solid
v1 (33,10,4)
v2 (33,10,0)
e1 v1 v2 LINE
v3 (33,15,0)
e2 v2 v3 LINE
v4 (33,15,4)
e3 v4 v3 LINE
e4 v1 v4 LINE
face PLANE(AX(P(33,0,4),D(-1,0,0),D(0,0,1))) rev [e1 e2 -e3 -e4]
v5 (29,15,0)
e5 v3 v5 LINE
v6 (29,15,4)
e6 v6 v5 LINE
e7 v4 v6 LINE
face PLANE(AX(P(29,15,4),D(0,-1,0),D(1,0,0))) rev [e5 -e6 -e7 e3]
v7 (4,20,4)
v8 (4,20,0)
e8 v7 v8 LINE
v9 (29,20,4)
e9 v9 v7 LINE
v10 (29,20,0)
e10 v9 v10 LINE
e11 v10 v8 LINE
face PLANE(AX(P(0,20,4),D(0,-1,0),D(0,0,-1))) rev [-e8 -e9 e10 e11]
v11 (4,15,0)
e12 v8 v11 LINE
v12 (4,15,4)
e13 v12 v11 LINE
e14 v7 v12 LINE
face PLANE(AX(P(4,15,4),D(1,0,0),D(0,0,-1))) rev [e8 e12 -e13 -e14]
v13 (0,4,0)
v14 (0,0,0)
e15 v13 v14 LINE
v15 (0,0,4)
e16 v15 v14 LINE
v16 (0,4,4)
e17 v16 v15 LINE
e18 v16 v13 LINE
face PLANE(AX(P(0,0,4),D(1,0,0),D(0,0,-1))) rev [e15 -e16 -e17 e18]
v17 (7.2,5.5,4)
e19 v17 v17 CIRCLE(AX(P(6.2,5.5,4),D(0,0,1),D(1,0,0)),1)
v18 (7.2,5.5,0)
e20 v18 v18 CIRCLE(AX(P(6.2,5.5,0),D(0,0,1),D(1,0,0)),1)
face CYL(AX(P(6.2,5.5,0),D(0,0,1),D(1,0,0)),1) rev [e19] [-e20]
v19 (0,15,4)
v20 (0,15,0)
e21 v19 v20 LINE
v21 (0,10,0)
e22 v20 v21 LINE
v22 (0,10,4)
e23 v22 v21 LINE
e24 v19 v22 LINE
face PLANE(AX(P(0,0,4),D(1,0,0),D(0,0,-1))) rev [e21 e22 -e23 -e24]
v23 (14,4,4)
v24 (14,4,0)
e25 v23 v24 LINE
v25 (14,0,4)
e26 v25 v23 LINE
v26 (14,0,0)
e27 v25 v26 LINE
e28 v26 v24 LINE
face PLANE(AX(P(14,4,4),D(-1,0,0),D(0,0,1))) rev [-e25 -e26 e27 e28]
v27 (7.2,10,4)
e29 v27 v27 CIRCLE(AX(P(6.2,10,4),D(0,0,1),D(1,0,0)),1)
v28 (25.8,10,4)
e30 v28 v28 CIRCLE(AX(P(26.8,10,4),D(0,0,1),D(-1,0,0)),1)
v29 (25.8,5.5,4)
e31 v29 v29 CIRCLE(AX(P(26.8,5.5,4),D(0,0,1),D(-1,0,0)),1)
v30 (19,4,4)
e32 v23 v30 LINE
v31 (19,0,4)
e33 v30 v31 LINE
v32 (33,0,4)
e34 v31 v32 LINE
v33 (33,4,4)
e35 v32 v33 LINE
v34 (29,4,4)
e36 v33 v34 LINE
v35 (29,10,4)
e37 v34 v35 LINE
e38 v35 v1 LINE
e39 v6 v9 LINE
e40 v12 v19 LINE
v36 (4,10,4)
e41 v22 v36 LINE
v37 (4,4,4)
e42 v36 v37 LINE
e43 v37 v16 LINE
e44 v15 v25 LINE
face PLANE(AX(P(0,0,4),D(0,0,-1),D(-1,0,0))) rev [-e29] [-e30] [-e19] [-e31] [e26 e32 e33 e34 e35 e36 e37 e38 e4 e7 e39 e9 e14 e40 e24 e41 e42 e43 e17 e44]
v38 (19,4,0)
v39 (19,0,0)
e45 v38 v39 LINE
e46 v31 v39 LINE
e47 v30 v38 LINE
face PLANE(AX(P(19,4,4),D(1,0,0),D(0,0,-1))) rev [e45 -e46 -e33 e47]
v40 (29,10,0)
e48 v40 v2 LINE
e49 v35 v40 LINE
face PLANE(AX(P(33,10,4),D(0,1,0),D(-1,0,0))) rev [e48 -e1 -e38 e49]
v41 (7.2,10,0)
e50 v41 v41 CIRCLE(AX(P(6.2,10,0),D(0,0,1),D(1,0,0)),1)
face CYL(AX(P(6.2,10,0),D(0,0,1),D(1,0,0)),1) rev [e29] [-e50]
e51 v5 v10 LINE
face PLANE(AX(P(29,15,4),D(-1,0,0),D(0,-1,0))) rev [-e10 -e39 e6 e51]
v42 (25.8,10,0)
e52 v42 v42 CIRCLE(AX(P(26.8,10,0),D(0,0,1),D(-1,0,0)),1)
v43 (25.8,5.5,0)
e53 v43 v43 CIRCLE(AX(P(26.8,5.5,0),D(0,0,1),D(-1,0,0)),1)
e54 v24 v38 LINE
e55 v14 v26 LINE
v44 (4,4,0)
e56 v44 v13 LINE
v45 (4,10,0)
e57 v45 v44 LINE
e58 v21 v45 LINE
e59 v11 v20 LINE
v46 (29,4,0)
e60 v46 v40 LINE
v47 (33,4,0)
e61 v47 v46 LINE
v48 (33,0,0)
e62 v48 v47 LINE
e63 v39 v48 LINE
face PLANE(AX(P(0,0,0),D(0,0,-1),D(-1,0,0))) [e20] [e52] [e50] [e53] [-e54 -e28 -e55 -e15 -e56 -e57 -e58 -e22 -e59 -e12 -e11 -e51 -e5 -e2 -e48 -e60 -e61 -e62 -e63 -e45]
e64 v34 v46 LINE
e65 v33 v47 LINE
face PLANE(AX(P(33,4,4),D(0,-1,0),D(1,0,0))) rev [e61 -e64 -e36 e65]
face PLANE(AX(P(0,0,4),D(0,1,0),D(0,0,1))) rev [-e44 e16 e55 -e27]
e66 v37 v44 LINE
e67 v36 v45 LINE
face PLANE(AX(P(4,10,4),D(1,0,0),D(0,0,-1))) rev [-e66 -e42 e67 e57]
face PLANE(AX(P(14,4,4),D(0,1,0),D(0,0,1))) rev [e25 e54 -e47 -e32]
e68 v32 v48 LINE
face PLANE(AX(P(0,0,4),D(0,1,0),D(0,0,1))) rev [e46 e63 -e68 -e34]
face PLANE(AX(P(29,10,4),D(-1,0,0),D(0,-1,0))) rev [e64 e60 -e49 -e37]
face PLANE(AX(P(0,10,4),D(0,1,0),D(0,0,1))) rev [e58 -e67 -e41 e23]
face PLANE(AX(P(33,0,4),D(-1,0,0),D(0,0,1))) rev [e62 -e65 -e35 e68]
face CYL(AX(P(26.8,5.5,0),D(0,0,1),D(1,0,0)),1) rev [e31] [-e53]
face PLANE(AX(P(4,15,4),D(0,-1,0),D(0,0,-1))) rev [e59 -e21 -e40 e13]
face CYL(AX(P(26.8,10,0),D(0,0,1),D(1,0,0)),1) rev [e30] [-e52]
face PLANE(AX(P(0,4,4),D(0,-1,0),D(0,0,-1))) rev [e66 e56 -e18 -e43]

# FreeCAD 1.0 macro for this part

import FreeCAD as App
import Part
import Sketcher
Q = App.Units.Quantity


def add_polygon(sketch, points):
    """Adds a closed chain of lines whose ends are joined by coincident constraints."""
    first, n = sketch.GeometryCount, len(points)
    for a, b in zip(points, points[1:] + points[:1]):
        sketch.addGeometry(Part.LineSegment(App.Vector(*a, 0), App.Vector(*b, 0)), False)
    for i in range(n):
        sketch.addConstraint(Sketcher.Constraint("Coincident", first + i, 2, first + (i + 1) % n, 1))

doc = App.newDocument("Part")
body = doc.addObject("PartDesign::Body", "Body")

sketch1 = doc.addObject("Sketcher::SketchObject", "Sketch")
body.addObject(sketch1)
sketch1.AttachmentSupport = (doc.XY_Plane, [""])
sketch1.MapMode = "FlatFace"
add_polygon(sketch1, [(0, 20), (0, 0), (33, 0), (33, 20)])
sketch1.addConstraint(Sketcher.Constraint("Vertical", 0))
sketch1.addConstraint(Sketcher.Constraint("Horizontal", 1))
sketch1.addConstraint(Sketcher.Constraint("Vertical", 2))
sketch1.addConstraint(Sketcher.Constraint("Horizontal", 3))
sketch1.addConstraint(Sketcher.Constraint("Coincident", 0, 2, -1, 1))
sketch1.addConstraint(Sketcher.Constraint("DistanceX", 1, 1, 1, 2, Q("33 mm")))
sketch1.addConstraint(Sketcher.Constraint("DistanceY", 0, 2, 0, 1, Q("20 mm")))
pad1 = doc.addObject("PartDesign::Pad", "Pad")
body.addObject(pad1)
pad1.Profile = sketch1
pad1.Length = 4

sketch2 = doc.addObject("Sketcher::SketchObject", "Sketch001")
body.addObject(sketch2)
sketch2.AttachmentSupport = (doc.XY_Plane, [""])
sketch2.MapMode = "FlatFace"
add_polygon(sketch2, [(4, 20), (4, 15), (0, 15), (0, 20)])
add_polygon(sketch2, [(4, 10), (4, 4), (0, 4), (0, 10)])
add_polygon(sketch2, [(19, 4), (19, 0), (14, 0), (14, 4)])
add_polygon(sketch2, [(33, 10), (33, 4), (29, 4), (29, 10)])
add_polygon(sketch2, [(33, 20), (33, 15), (29, 15), (29, 20)])
sketch2.addConstraint(Sketcher.Constraint("Vertical", 0))
sketch2.addConstraint(Sketcher.Constraint("Horizontal", 1))
sketch2.addConstraint(Sketcher.Constraint("Vertical", 2))
sketch2.addConstraint(Sketcher.Constraint("Horizontal", 3))
sketch2.addConstraint(Sketcher.Constraint("Vertical", 4))
sketch2.addConstraint(Sketcher.Constraint("Horizontal", 5))
sketch2.addConstraint(Sketcher.Constraint("Vertical", 6))
sketch2.addConstraint(Sketcher.Constraint("Horizontal", 7))
sketch2.addConstraint(Sketcher.Constraint("Vertical", 8))
sketch2.addConstraint(Sketcher.Constraint("Horizontal", 9))
sketch2.addConstraint(Sketcher.Constraint("Vertical", 10))
sketch2.addConstraint(Sketcher.Constraint("Horizontal", 11))
sketch2.addConstraint(Sketcher.Constraint("Vertical", 12))
sketch2.addConstraint(Sketcher.Constraint("Horizontal", 13))
sketch2.addConstraint(Sketcher.Constraint("Vertical", 14))
sketch2.addConstraint(Sketcher.Constraint("Horizontal", 15))
sketch2.addConstraint(Sketcher.Constraint("Vertical", 16))
sketch2.addConstraint(Sketcher.Constraint("Horizontal", 17))
sketch2.addConstraint(Sketcher.Constraint("Vertical", 18))
sketch2.addConstraint(Sketcher.Constraint("Horizontal", 19))
sketch2.addConstraint(Sketcher.Constraint("PointOnObject", 1, 2, -2))
sketch2.addConstraint(Sketcher.Constraint("PointOnObject", 5, 2, -2))
sketch2.addConstraint(Sketcher.Constraint("PointOnObject", 8, 2, -1))
sketch2.addConstraint(Sketcher.Constraint("Horizontal", 5, 2, 10, 2))
sketch2.addConstraint(Sketcher.Constraint("Horizontal", 11, 2, 12, 2))
sketch2.addConstraint(Sketcher.Constraint("Horizontal", 7, 2, 14, 2))
sketch2.addConstraint(Sketcher.Constraint("Horizontal", 1, 2, 16, 2))
sketch2.addConstraint(Sketcher.Constraint("Horizontal", 3, 2, 18, 2))
sketch2.addConstraint(Sketcher.Constraint("Vertical", 3, 2, 4, 2))
sketch2.addConstraint(Sketcher.Constraint("Vertical", 15, 2, 16, 2))
sketch2.addConstraint(Sketcher.Constraint("Vertical", 14, 2, 17, 2))
sketch2.addConstraint(Sketcher.Constraint("Equal", 7, 13))
sketch2.addConstraint(Sketcher.Constraint("Equal", 11, 0))
sketch2.addConstraint(Sketcher.Constraint("Equal", 19, 8))
sketch2.addConstraint(Sketcher.Constraint("DistanceX", 1, 2, 1, 1, Q("4 mm")))
sketch2.addConstraint(Sketcher.Constraint("DistanceX", 9, 2, 9, 1, Q("5 mm")))
sketch2.addConstraint(Sketcher.Constraint("DistanceY", 4, 2, 4, 1, Q("6 mm")))
sketch2.addConstraint(Sketcher.Constraint("DistanceY", -1, 1, 0, 2, Q("15 mm")))
sketch2.addConstraint(Sketcher.Constraint("DistanceX", -1, 1, 8, 2, Q("19 mm")))
sketch2.addConstraint(Sketcher.Constraint("DistanceX", -1, 1, 12, 2, Q("33 mm")))
pocket1 = doc.addObject("PartDesign::Pocket", "Pocket")
body.addObject(pocket1)
pocket1.Profile = sketch2
pocket1.Length = 4
pocket1.Reversed = True

sketch3 = doc.addObject("Sketcher::SketchObject", "Sketch002")
body.addObject(sketch3)
sketch3.AttachmentSupport = (doc.XY_Plane, [""])
sketch3.MapMode = "FlatFace"
sketch3.AttachmentOffset = App.Placement(App.Vector(0, 0, 4), App.Rotation())
sketch3.addGeometry(Part.Circle(App.Vector(6.2, 10, 0), App.Vector(0, 0, 1), 1), False)
sketch3.addGeometry(Part.Circle(App.Vector(26.8, 10, 0), App.Vector(0, 0, 1), 1), False)
sketch3.addGeometry(Part.Circle(App.Vector(6.2, 5.5, 0), App.Vector(0, 0, 1), 1), False)
sketch3.addGeometry(Part.Circle(App.Vector(26.8, 5.5, 0), App.Vector(0, 0, 1), 1), False)
sketch3.addConstraint(Sketcher.Constraint("Equal", 0, 1))
sketch3.addConstraint(Sketcher.Constraint("Equal", 1, 2))
sketch3.addConstraint(Sketcher.Constraint("Equal", 2, 3))
sketch3.addConstraint(Sketcher.Constraint("Horizontal", 0, 3, 1, 3))
sketch3.addConstraint(Sketcher.Constraint("Horizontal", 2, 3, 3, 3))
sketch3.addConstraint(Sketcher.Constraint("Vertical", 0, 3, 2, 3))
sketch3.addConstraint(Sketcher.Constraint("Vertical", 1, 3, 3, 3))
sketch3.addConstraint(Sketcher.Constraint("Diameter", 0, Q("2 mm")))
sketch3.addConstraint(Sketcher.Constraint("DistanceY", -1, 1, 0, 3, Q("10 mm")))
sketch3.addConstraint(Sketcher.Constraint("DistanceX", -1, 1, 0, 3, Q("6.2 mm")))
sketch3.addConstraint(Sketcher.Constraint("DistanceX", -1, 1, 1, 3, Q("26.8 mm")))
sketch3.addConstraint(Sketcher.Constraint("DistanceY", -1, 1, 2, 3, Q("5.5 mm")))
pocket2 = doc.addObject("PartDesign::Pocket", "Pocket001")
body.addObject(pocket2)
pocket2.Profile = sketch3
pocket2.Length = 4

doc.recompute()
